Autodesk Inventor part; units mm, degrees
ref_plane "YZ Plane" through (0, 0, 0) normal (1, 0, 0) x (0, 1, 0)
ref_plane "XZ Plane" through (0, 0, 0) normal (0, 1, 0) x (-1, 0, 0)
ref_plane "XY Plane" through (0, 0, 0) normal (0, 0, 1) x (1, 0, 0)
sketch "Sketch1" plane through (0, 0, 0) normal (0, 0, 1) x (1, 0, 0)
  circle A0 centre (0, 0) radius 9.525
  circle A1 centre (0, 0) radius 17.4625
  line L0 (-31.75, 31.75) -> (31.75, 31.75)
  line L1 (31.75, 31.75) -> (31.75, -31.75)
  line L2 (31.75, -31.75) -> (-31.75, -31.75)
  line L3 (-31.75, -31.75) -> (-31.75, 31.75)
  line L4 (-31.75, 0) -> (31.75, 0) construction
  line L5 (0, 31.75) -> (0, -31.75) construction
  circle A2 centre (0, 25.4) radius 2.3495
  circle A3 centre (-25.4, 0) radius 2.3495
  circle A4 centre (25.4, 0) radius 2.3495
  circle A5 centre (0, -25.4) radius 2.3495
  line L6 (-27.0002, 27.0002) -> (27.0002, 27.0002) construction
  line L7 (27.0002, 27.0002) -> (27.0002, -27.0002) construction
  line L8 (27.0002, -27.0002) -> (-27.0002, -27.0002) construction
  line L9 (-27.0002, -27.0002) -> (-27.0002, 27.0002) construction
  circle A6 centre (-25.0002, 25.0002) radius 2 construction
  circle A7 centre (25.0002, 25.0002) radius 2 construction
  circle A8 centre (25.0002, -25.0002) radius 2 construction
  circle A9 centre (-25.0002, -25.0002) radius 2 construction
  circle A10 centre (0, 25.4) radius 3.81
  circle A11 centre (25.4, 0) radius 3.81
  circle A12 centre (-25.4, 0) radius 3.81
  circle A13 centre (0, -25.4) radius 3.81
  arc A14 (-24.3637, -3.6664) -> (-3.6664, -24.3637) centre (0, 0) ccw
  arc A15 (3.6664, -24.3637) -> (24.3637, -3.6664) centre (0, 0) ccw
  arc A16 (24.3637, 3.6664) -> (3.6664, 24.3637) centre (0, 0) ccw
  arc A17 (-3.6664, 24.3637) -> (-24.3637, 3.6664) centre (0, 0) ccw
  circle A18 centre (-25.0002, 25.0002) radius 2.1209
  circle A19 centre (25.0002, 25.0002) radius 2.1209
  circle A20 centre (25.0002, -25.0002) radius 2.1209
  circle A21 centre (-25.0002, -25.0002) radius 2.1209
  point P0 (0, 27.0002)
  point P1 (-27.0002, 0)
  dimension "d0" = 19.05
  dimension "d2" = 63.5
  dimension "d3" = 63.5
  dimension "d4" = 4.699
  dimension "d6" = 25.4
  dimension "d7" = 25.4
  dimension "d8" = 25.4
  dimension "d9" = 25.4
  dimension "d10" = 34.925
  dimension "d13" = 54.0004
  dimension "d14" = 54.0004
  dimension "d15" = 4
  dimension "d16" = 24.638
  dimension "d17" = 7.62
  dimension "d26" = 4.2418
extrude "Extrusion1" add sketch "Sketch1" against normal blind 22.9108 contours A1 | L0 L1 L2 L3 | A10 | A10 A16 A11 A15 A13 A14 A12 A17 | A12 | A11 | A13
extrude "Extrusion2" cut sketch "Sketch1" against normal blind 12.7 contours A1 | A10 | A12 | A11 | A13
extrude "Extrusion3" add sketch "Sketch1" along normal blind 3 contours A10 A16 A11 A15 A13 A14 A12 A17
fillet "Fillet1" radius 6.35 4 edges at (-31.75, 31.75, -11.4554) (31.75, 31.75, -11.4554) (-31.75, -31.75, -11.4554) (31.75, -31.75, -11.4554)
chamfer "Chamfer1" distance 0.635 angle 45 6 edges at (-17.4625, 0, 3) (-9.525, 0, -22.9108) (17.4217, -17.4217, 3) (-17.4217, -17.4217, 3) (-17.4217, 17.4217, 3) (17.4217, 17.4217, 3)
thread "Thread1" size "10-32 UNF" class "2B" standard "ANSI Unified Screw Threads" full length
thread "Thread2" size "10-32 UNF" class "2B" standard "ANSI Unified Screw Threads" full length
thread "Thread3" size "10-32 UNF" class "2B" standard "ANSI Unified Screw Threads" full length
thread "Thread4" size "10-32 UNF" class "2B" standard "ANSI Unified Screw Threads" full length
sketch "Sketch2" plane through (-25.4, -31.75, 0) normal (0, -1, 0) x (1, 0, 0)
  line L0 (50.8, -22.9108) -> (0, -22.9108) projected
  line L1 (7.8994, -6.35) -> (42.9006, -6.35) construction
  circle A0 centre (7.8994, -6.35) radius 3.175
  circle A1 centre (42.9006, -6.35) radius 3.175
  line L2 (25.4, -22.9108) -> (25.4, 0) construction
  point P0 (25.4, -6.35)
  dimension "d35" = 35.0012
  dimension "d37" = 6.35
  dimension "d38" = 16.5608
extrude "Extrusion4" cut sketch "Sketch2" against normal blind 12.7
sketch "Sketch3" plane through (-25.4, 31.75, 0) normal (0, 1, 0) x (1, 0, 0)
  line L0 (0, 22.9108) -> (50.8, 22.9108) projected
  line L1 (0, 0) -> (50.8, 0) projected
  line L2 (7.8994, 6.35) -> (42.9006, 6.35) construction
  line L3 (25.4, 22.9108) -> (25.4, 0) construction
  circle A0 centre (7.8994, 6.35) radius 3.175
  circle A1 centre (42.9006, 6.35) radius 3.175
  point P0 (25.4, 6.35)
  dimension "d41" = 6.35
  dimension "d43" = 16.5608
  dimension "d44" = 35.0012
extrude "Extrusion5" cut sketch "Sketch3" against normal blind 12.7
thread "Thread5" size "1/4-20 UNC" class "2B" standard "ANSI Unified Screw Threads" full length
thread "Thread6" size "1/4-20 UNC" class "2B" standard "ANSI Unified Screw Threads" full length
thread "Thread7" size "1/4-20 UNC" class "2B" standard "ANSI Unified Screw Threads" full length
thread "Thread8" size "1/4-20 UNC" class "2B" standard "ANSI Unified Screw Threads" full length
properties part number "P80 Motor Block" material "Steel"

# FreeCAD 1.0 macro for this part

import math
import FreeCAD as App
import Part
import Sketcher
from FreeCAD import Vector
Q = App.Units.Quantity


def edges_at(feature, points):
    """Names of the edges that pass closest to the given points."""
    edges = feature.Shape.Edges
    near = lambda p: min(range(len(edges)), key=lambda i: edges[i].distToShape(Part.Vertex(*p))[0])
    return sorted({f"Edge{near(p) + 1}" for p in points})


def add_polygon(sketch, points):
    """Adds a closed chain of lines whose ends are joined by coincident constraints."""
    first, n = sketch.GeometryCount, len(points)
    for a, b in zip(points, points[1:] + points[:1]):
        sketch.addGeometry(Part.LineSegment(App.Vector(*a, 0), App.Vector(*b, 0)), False)
    for i in range(n):
        sketch.addConstraint(Sketcher.Constraint("Coincident", first + i, 2, first + (i + 1) % n, 1))

doc = App.newDocument("Part")
body = doc.addObject("PartDesign::Body", "Body")

# Sketch on XY plane
sketch1 = body.newObject("Sketcher::SketchObject", "Sketch")
sketch1.AttachmentSupport = (doc.getObject("XY_Plane"), [""])
sketch1.MapMode = "FlatFace"
add_polygon(sketch1, [(31.8, 31.8), (-31.8, 31.8), (-31.8, -31.8), (31.8, -31.8)])  # lines 0-3
sketch1.addGeometry(Part.Circle(Vector(0, 0, 0), Vector(0, 0, 1), 9.5), False)  # 4
sketch1.addGeometry(Part.Circle(Vector(0, 25.4, 0), Vector(0, 0, 1), 2.3), False)  # 5
sketch1.addGeometry(Part.Circle(Vector(-25, -25, 0), Vector(0, 0, 1), 2.1), False)  # 6
sketch1.addGeometry(Part.Circle(Vector(25, -25, 0), Vector(0, 0, 1), 2.1), False)  # 7
sketch1.addGeometry(Part.Circle(Vector(-25, 25, 0), Vector(0, 0, 1), 2.1), False)  # 8
sketch1.addGeometry(Part.Circle(Vector(25, 25, 0), Vector(0, 0, 1), 2.1), False)  # 9
sketch1.addGeometry(Part.Circle(Vector(25.4, 0, 0), Vector(0, 0, 1), 2.3), False)  # 10
sketch1.addGeometry(Part.Circle(Vector(0, -25.4, 0), Vector(0, 0, 1), 2.3), False)  # 11
sketch1.addGeometry(Part.Circle(Vector(-25.4, 0, 0), Vector(0, 0, 1), 2.3), False)  # 12
sketch1.addConstraint([
    Sketcher.Constraint("Horizontal", 0),
    Sketcher.Constraint("Vertical", 1),
    Sketcher.Constraint("Horizontal", 2),
    Sketcher.Constraint("Vertical", 3),
    Sketcher.Constraint("Coincident", 4, 3, -1, 1),
    Sketcher.Constraint("Equal", 6, 7),
    Sketcher.Constraint("Equal", 7, 8),
    Sketcher.Constraint("Equal", 8, 9),
    Sketcher.Constraint("Equal", 5, 10),
    Sketcher.Constraint("Equal", 10, 11),
    Sketcher.Constraint("Equal", 11, 12),
    Sketcher.Constraint("Symmetric", 7, 3, 8, 3, -1, 1),
    Sketcher.Constraint("Symmetric", 6, 3, 9, 3, -1, 1),
    Sketcher.Constraint("Symmetric", 5, 3, 11, 3, -1, 1),
    Sketcher.Constraint("Symmetric", 10, 3, 12, 3, -1, 1),
    Sketcher.Constraint("Symmetric", 0, 2, 2, 2, -1, 1),
    Sketcher.Constraint("Symmetric", 6, 3, 7, 3, -2),
    Sketcher.Constraint("PointOnObject", 5, 3, -2),
    Sketcher.Constraint("PointOnObject", 10, 3, -1),
    Sketcher.Constraint("Equal", 2, 1),
    Sketcher.Constraint("Diameter", 4, Q("0.75 in")),
    Sketcher.Constraint("Diameter", 5, Q("0.185 in")),
    Sketcher.Constraint("Diameter", 6, Q("0.167 in")),
    Sketcher.Constraint("DistanceX", 0, 2, 0, 1, Q("2.5 in")),
    Sketcher.Constraint("DistanceY", -1, 1, 5, 3, Q("1 in")),
    Sketcher.Constraint("DistanceX", -1, 1, 10, 3, Q("1 in")),
    Sketcher.Constraint("DistanceX", 6, 3, -1, 1, 25.0002),
    Sketcher.Constraint("DistanceY", 6, 3, -1, 1, 25.0002),
])
pad1 = body.newObject("PartDesign::Pad", "Pad")
pad1.Profile = sketch1
pad1.Length = Q("0.902 in")
pad1.Reversed = True

# Sketch on XY plane
sketch2 = body.newObject("Sketcher::SketchObject", "Sketch001")
sketch2.AttachmentSupport = (doc.getObject("XY_Plane"), [""])
sketch2.MapMode = "FlatFace"
sketch2.addGeometry([
    Part.Circle(Vector(0, 0, 0), Vector(0, 0, 1), 17.5),  # 0
    Part.Circle(Vector(0, 0, 0), Vector(0, 0, 1), 9.5),  # 1
    Part.Circle(Vector(0, 25.4, 0), Vector(0, 0, 1), 3.8),  # 2
    Part.Circle(Vector(0, 25.4, 0), Vector(0, 0, 1), 2.3),  # 3
    Part.Circle(Vector(-25.4, 0, 0), Vector(0, 0, 1), 3.8),  # 4
    Part.Circle(Vector(-25.4, 0, 0), Vector(0, 0, 1), 2.3),  # 5
    Part.Circle(Vector(25.4, 0, 0), Vector(0, 0, 1), 3.8),  # 6
    Part.Circle(Vector(25.4, 0, 0), Vector(0, 0, 1), 2.3),  # 7
    Part.Circle(Vector(0, -25.4, 0), Vector(0, 0, 1), 3.8),  # 8
    Part.Circle(Vector(0, -25.4, 0), Vector(0, 0, 1), 2.3),  # 9
], False)
sketch2.addConstraint([
    Sketcher.Constraint("Coincident", 0, 3, -1, 1),
    Sketcher.Constraint("Coincident", 1, 3, -1, 1),
    Sketcher.Constraint("Coincident", 3, 3, 2, 3),
    Sketcher.Constraint("Coincident", 5, 3, 4, 3),
    Sketcher.Constraint("Coincident", 7, 3, 6, 3),
    Sketcher.Constraint("Coincident", 9, 3, 8, 3),
    Sketcher.Constraint("Equal", 2, 4),
    Sketcher.Constraint("Equal", 3, 5),
    Sketcher.Constraint("Equal", 4, 6),
    Sketcher.Constraint("Equal", 5, 7),
    Sketcher.Constraint("Equal", 6, 8),
    Sketcher.Constraint("Equal", 7, 9),
    Sketcher.Constraint("Symmetric", 4, 3, 6, 3, -1, 1),
    Sketcher.Constraint("Symmetric", 2, 3, 8, 3, -1, 1),
    Sketcher.Constraint("PointOnObject", 2, 3, -2),
    Sketcher.Constraint("PointOnObject", 4, 3, -1),
    Sketcher.Constraint("Diameter", 2, Q("0.3 in")),
    Sketcher.Constraint("Diameter", 1, Q("0.75 in")),
    Sketcher.Constraint("Diameter", 0, Q("1.375 in")),
    Sketcher.Constraint("Diameter", 3, Q("0.185 in")),
    Sketcher.Constraint("DistanceY", -1, 1, 2, 3, Q("1 in")),
    Sketcher.Constraint("DistanceX", 4, 3, -1, 1, Q("1 in")),
])
pocket1 = body.newObject("PartDesign::Pocket", "Pocket")
pocket1.Profile = sketch2
pocket1.Length = Q("0.5 in")

# Sketch on XY plane
sketch3 = body.newObject("Sketcher::SketchObject", "Sketch002")
sketch3.AttachmentSupport = (doc.getObject("XY_Plane"), [""])
sketch3.MapMode = "FlatFace"
sketch3.addGeometry([
    Part.ArcOfCircle(Part.Circle(Vector(0, 25.4, 0), Vector(0, 0, 1), 3.8), math.radians(-164), math.radians(-16)),  # 0
    Part.ArcOfCircle(Part.Circle(Vector(0, 0, 0), Vector(0, 0, 1), 24.6), math.radians(99), math.radians(171)),  # 1
    Part.ArcOfCircle(Part.Circle(Vector(-25.4, 0, 0), Vector(0, 0, 1), 3.8), math.radians(-74), math.radians(74)),  # 2
    Part.ArcOfCircle(Part.Circle(Vector(0, 0, 0), Vector(0, 0, 1), 24.6), math.radians(-171), math.radians(-99)),  # 3
    Part.ArcOfCircle(Part.Circle(Vector(0, -25.4, 0), Vector(0, 0, 1), 3.8), math.radians(16), math.radians(164)),  # 4
    Part.ArcOfCircle(Part.Circle(Vector(0, 0, 0), Vector(0, 0, 1), 24.6), math.radians(-81), math.radians(-9)),  # 5
    Part.ArcOfCircle(Part.Circle(Vector(25.4, 0, 0), Vector(0, 0, 1), 3.8), math.radians(106), math.radians(254)),  # 6
    Part.ArcOfCircle(Part.Circle(Vector(0, 0, 0), Vector(0, 0, 1), 24.6), math.radians(9), math.radians(81)),  # 7
    Part.Circle(Vector(0, 0, 0), Vector(0, 0, 1), 17.5),  # 8
], False)
sketch3.addConstraint([
    Sketcher.Constraint("Coincident", 0, 1, 1, 1),
    Sketcher.Constraint("Coincident", 1, 2, 2, 2),
    Sketcher.Constraint("Coincident", 2, 1, 3, 1),
    Sketcher.Constraint("Coincident", 3, 2, 4, 2),
    Sketcher.Constraint("Coincident", 4, 1, 5, 1),
    Sketcher.Constraint("Coincident", 5, 2, 6, 2),
    Sketcher.Constraint("Coincident", 6, 1, 7, 1),
    Sketcher.Constraint("Coincident", 7, 2, 0, 2),
    Sketcher.Constraint("Coincident", 1, 3, -1, 1),
    Sketcher.Constraint("Coincident", 3, 3, -1, 1),
    Sketcher.Constraint("Coincident", 5, 3, -1, 1),
    Sketcher.Constraint("Coincident", 7, 3, -1, 1),
    Sketcher.Constraint("Coincident", 8, 3, -1, 1),
    Sketcher.Constraint("Equal", 0, 2),
    Sketcher.Constraint("Equal", 1, 3),
    Sketcher.Constraint("Equal", 2, 4),
    Sketcher.Constraint("Equal", 3, 5),
    Sketcher.Constraint("Equal", 4, 6),
    Sketcher.Constraint("Equal", 5, 7),
    Sketcher.Constraint("Symmetric", 0, 3, 4, 3, -1, 1),
    Sketcher.Constraint("Symmetric", 2, 3, 6, 3, -1, 1),
    Sketcher.Constraint("PointOnObject", 0, 3, -2),
    Sketcher.Constraint("PointOnObject", 2, 3, -1),
    Sketcher.Constraint("Radius", 0, Q("0.15 in")),
    Sketcher.Constraint("Radius", 1, Q("0.97 in")),
    Sketcher.Constraint("Diameter", 8, Q("1.375 in")),
    Sketcher.Constraint("DistanceY", -1, 1, 0, 3, Q("1 in")),
    Sketcher.Constraint("DistanceX", 2, 3, -1, 1, Q("1 in")),
])
pad2 = body.newObject("PartDesign::Pad", "Pad001")
pad2.Profile = sketch3
pad2.Length = Q("0.1181102 in")
doc.recompute()

fillet = body.newObject("PartDesign::Fillet", "Fillet")
fillet.Base = (pad2, edges_at(pad2, [
    (-31.75, 31.75, -11.455),
    (31.75, 31.75, -11.455),
    (-31.75, -31.75, -11.455),
    (31.75, -31.75, -11.455),
]))
fillet.Radius = Q("0.25 in")
doc.recompute()

chamfer = body.newObject("PartDesign::Chamfer", "Chamfer")
chamfer.Base = (fillet, edges_at(fillet, [
    (-17.462, 0, 3),
    (-9.525, 0, -22.911),
    (17.422, -17.422, 3),
    (-17.422, -17.422, 3),
    (-17.422, 17.422, 3),
    (17.422, 17.422, 3),
]))
chamfer.Size = Q("0.025 in")

# Sketch on XZ plane
sketch4 = body.newObject("Sketcher::SketchObject", "Sketch003")
sketch4.AttachmentSupport = (doc.getObject("XZ_Plane"), [""])
sketch4.MapMode = "FlatFace"
sketch4.AttachmentOffset = App.Placement(Vector(0, 0, 1.25 * 25.4), App.Rotation())
sketch4.addGeometry([
    Part.Circle(Vector(-17.5, -6.3, 0), Vector(0, 0, 1), 3.2),
    Part.Circle(Vector(17.5, -6.3, 0), Vector(0, 0, 1), 3.2),
], False)
sketch4.addConstraint([
    Sketcher.Constraint("Equal", 0, 1),
    Sketcher.Constraint("Symmetric", 0, 3, 1, 3, -2),
    Sketcher.Constraint("Diameter", 0, Q("0.25 in")),
    Sketcher.Constraint("DistanceY", 0, 3, -1, 1, Q("0.25 in")),
    Sketcher.Constraint("DistanceX", 0, 3, 1, 3, Q("1.378 in")),
])
pocket2 = body.newObject("PartDesign::Pocket", "Pocket001")
pocket2.Profile = sketch4
pocket2.Length = Q("0.5 in")

# Sketch on XZ plane
sketch5 = body.newObject("Sketcher::SketchObject", "Sketch004")
sketch5.AttachmentSupport = (doc.getObject("XZ_Plane"), [""])
sketch5.MapMode = "FlatFace"
sketch5.AttachmentOffset = App.Placement(Vector(0, 0, -1.25 * 25.4), App.Rotation())
sketch5.addGeometry([
    Part.Circle(Vector(-17.5, -6.3, 0), Vector(0, 0, 1), 3.2),
    Part.Circle(Vector(17.5, -6.3, 0), Vector(0, 0, 1), 3.2),
], False)
sketch5.addConstraint([
    Sketcher.Constraint("Equal", 0, 1),
    Sketcher.Constraint("Symmetric", 0, 3, 1, 3, -2),
    Sketcher.Constraint("Diameter", 0, Q("0.25 in")),
    Sketcher.Constraint("DistanceY", 0, 3, -1, 1, Q("0.25 in")),
    Sketcher.Constraint("DistanceX", 0, 3, 1, 3, Q("1.378 in")),
])
pocket3 = body.newObject("PartDesign::Pocket", "Pocket002")
pocket3.Profile = sketch5
pocket3.Length = Q("0.5 in")
pocket3.Reversed = True

doc.recompute()
